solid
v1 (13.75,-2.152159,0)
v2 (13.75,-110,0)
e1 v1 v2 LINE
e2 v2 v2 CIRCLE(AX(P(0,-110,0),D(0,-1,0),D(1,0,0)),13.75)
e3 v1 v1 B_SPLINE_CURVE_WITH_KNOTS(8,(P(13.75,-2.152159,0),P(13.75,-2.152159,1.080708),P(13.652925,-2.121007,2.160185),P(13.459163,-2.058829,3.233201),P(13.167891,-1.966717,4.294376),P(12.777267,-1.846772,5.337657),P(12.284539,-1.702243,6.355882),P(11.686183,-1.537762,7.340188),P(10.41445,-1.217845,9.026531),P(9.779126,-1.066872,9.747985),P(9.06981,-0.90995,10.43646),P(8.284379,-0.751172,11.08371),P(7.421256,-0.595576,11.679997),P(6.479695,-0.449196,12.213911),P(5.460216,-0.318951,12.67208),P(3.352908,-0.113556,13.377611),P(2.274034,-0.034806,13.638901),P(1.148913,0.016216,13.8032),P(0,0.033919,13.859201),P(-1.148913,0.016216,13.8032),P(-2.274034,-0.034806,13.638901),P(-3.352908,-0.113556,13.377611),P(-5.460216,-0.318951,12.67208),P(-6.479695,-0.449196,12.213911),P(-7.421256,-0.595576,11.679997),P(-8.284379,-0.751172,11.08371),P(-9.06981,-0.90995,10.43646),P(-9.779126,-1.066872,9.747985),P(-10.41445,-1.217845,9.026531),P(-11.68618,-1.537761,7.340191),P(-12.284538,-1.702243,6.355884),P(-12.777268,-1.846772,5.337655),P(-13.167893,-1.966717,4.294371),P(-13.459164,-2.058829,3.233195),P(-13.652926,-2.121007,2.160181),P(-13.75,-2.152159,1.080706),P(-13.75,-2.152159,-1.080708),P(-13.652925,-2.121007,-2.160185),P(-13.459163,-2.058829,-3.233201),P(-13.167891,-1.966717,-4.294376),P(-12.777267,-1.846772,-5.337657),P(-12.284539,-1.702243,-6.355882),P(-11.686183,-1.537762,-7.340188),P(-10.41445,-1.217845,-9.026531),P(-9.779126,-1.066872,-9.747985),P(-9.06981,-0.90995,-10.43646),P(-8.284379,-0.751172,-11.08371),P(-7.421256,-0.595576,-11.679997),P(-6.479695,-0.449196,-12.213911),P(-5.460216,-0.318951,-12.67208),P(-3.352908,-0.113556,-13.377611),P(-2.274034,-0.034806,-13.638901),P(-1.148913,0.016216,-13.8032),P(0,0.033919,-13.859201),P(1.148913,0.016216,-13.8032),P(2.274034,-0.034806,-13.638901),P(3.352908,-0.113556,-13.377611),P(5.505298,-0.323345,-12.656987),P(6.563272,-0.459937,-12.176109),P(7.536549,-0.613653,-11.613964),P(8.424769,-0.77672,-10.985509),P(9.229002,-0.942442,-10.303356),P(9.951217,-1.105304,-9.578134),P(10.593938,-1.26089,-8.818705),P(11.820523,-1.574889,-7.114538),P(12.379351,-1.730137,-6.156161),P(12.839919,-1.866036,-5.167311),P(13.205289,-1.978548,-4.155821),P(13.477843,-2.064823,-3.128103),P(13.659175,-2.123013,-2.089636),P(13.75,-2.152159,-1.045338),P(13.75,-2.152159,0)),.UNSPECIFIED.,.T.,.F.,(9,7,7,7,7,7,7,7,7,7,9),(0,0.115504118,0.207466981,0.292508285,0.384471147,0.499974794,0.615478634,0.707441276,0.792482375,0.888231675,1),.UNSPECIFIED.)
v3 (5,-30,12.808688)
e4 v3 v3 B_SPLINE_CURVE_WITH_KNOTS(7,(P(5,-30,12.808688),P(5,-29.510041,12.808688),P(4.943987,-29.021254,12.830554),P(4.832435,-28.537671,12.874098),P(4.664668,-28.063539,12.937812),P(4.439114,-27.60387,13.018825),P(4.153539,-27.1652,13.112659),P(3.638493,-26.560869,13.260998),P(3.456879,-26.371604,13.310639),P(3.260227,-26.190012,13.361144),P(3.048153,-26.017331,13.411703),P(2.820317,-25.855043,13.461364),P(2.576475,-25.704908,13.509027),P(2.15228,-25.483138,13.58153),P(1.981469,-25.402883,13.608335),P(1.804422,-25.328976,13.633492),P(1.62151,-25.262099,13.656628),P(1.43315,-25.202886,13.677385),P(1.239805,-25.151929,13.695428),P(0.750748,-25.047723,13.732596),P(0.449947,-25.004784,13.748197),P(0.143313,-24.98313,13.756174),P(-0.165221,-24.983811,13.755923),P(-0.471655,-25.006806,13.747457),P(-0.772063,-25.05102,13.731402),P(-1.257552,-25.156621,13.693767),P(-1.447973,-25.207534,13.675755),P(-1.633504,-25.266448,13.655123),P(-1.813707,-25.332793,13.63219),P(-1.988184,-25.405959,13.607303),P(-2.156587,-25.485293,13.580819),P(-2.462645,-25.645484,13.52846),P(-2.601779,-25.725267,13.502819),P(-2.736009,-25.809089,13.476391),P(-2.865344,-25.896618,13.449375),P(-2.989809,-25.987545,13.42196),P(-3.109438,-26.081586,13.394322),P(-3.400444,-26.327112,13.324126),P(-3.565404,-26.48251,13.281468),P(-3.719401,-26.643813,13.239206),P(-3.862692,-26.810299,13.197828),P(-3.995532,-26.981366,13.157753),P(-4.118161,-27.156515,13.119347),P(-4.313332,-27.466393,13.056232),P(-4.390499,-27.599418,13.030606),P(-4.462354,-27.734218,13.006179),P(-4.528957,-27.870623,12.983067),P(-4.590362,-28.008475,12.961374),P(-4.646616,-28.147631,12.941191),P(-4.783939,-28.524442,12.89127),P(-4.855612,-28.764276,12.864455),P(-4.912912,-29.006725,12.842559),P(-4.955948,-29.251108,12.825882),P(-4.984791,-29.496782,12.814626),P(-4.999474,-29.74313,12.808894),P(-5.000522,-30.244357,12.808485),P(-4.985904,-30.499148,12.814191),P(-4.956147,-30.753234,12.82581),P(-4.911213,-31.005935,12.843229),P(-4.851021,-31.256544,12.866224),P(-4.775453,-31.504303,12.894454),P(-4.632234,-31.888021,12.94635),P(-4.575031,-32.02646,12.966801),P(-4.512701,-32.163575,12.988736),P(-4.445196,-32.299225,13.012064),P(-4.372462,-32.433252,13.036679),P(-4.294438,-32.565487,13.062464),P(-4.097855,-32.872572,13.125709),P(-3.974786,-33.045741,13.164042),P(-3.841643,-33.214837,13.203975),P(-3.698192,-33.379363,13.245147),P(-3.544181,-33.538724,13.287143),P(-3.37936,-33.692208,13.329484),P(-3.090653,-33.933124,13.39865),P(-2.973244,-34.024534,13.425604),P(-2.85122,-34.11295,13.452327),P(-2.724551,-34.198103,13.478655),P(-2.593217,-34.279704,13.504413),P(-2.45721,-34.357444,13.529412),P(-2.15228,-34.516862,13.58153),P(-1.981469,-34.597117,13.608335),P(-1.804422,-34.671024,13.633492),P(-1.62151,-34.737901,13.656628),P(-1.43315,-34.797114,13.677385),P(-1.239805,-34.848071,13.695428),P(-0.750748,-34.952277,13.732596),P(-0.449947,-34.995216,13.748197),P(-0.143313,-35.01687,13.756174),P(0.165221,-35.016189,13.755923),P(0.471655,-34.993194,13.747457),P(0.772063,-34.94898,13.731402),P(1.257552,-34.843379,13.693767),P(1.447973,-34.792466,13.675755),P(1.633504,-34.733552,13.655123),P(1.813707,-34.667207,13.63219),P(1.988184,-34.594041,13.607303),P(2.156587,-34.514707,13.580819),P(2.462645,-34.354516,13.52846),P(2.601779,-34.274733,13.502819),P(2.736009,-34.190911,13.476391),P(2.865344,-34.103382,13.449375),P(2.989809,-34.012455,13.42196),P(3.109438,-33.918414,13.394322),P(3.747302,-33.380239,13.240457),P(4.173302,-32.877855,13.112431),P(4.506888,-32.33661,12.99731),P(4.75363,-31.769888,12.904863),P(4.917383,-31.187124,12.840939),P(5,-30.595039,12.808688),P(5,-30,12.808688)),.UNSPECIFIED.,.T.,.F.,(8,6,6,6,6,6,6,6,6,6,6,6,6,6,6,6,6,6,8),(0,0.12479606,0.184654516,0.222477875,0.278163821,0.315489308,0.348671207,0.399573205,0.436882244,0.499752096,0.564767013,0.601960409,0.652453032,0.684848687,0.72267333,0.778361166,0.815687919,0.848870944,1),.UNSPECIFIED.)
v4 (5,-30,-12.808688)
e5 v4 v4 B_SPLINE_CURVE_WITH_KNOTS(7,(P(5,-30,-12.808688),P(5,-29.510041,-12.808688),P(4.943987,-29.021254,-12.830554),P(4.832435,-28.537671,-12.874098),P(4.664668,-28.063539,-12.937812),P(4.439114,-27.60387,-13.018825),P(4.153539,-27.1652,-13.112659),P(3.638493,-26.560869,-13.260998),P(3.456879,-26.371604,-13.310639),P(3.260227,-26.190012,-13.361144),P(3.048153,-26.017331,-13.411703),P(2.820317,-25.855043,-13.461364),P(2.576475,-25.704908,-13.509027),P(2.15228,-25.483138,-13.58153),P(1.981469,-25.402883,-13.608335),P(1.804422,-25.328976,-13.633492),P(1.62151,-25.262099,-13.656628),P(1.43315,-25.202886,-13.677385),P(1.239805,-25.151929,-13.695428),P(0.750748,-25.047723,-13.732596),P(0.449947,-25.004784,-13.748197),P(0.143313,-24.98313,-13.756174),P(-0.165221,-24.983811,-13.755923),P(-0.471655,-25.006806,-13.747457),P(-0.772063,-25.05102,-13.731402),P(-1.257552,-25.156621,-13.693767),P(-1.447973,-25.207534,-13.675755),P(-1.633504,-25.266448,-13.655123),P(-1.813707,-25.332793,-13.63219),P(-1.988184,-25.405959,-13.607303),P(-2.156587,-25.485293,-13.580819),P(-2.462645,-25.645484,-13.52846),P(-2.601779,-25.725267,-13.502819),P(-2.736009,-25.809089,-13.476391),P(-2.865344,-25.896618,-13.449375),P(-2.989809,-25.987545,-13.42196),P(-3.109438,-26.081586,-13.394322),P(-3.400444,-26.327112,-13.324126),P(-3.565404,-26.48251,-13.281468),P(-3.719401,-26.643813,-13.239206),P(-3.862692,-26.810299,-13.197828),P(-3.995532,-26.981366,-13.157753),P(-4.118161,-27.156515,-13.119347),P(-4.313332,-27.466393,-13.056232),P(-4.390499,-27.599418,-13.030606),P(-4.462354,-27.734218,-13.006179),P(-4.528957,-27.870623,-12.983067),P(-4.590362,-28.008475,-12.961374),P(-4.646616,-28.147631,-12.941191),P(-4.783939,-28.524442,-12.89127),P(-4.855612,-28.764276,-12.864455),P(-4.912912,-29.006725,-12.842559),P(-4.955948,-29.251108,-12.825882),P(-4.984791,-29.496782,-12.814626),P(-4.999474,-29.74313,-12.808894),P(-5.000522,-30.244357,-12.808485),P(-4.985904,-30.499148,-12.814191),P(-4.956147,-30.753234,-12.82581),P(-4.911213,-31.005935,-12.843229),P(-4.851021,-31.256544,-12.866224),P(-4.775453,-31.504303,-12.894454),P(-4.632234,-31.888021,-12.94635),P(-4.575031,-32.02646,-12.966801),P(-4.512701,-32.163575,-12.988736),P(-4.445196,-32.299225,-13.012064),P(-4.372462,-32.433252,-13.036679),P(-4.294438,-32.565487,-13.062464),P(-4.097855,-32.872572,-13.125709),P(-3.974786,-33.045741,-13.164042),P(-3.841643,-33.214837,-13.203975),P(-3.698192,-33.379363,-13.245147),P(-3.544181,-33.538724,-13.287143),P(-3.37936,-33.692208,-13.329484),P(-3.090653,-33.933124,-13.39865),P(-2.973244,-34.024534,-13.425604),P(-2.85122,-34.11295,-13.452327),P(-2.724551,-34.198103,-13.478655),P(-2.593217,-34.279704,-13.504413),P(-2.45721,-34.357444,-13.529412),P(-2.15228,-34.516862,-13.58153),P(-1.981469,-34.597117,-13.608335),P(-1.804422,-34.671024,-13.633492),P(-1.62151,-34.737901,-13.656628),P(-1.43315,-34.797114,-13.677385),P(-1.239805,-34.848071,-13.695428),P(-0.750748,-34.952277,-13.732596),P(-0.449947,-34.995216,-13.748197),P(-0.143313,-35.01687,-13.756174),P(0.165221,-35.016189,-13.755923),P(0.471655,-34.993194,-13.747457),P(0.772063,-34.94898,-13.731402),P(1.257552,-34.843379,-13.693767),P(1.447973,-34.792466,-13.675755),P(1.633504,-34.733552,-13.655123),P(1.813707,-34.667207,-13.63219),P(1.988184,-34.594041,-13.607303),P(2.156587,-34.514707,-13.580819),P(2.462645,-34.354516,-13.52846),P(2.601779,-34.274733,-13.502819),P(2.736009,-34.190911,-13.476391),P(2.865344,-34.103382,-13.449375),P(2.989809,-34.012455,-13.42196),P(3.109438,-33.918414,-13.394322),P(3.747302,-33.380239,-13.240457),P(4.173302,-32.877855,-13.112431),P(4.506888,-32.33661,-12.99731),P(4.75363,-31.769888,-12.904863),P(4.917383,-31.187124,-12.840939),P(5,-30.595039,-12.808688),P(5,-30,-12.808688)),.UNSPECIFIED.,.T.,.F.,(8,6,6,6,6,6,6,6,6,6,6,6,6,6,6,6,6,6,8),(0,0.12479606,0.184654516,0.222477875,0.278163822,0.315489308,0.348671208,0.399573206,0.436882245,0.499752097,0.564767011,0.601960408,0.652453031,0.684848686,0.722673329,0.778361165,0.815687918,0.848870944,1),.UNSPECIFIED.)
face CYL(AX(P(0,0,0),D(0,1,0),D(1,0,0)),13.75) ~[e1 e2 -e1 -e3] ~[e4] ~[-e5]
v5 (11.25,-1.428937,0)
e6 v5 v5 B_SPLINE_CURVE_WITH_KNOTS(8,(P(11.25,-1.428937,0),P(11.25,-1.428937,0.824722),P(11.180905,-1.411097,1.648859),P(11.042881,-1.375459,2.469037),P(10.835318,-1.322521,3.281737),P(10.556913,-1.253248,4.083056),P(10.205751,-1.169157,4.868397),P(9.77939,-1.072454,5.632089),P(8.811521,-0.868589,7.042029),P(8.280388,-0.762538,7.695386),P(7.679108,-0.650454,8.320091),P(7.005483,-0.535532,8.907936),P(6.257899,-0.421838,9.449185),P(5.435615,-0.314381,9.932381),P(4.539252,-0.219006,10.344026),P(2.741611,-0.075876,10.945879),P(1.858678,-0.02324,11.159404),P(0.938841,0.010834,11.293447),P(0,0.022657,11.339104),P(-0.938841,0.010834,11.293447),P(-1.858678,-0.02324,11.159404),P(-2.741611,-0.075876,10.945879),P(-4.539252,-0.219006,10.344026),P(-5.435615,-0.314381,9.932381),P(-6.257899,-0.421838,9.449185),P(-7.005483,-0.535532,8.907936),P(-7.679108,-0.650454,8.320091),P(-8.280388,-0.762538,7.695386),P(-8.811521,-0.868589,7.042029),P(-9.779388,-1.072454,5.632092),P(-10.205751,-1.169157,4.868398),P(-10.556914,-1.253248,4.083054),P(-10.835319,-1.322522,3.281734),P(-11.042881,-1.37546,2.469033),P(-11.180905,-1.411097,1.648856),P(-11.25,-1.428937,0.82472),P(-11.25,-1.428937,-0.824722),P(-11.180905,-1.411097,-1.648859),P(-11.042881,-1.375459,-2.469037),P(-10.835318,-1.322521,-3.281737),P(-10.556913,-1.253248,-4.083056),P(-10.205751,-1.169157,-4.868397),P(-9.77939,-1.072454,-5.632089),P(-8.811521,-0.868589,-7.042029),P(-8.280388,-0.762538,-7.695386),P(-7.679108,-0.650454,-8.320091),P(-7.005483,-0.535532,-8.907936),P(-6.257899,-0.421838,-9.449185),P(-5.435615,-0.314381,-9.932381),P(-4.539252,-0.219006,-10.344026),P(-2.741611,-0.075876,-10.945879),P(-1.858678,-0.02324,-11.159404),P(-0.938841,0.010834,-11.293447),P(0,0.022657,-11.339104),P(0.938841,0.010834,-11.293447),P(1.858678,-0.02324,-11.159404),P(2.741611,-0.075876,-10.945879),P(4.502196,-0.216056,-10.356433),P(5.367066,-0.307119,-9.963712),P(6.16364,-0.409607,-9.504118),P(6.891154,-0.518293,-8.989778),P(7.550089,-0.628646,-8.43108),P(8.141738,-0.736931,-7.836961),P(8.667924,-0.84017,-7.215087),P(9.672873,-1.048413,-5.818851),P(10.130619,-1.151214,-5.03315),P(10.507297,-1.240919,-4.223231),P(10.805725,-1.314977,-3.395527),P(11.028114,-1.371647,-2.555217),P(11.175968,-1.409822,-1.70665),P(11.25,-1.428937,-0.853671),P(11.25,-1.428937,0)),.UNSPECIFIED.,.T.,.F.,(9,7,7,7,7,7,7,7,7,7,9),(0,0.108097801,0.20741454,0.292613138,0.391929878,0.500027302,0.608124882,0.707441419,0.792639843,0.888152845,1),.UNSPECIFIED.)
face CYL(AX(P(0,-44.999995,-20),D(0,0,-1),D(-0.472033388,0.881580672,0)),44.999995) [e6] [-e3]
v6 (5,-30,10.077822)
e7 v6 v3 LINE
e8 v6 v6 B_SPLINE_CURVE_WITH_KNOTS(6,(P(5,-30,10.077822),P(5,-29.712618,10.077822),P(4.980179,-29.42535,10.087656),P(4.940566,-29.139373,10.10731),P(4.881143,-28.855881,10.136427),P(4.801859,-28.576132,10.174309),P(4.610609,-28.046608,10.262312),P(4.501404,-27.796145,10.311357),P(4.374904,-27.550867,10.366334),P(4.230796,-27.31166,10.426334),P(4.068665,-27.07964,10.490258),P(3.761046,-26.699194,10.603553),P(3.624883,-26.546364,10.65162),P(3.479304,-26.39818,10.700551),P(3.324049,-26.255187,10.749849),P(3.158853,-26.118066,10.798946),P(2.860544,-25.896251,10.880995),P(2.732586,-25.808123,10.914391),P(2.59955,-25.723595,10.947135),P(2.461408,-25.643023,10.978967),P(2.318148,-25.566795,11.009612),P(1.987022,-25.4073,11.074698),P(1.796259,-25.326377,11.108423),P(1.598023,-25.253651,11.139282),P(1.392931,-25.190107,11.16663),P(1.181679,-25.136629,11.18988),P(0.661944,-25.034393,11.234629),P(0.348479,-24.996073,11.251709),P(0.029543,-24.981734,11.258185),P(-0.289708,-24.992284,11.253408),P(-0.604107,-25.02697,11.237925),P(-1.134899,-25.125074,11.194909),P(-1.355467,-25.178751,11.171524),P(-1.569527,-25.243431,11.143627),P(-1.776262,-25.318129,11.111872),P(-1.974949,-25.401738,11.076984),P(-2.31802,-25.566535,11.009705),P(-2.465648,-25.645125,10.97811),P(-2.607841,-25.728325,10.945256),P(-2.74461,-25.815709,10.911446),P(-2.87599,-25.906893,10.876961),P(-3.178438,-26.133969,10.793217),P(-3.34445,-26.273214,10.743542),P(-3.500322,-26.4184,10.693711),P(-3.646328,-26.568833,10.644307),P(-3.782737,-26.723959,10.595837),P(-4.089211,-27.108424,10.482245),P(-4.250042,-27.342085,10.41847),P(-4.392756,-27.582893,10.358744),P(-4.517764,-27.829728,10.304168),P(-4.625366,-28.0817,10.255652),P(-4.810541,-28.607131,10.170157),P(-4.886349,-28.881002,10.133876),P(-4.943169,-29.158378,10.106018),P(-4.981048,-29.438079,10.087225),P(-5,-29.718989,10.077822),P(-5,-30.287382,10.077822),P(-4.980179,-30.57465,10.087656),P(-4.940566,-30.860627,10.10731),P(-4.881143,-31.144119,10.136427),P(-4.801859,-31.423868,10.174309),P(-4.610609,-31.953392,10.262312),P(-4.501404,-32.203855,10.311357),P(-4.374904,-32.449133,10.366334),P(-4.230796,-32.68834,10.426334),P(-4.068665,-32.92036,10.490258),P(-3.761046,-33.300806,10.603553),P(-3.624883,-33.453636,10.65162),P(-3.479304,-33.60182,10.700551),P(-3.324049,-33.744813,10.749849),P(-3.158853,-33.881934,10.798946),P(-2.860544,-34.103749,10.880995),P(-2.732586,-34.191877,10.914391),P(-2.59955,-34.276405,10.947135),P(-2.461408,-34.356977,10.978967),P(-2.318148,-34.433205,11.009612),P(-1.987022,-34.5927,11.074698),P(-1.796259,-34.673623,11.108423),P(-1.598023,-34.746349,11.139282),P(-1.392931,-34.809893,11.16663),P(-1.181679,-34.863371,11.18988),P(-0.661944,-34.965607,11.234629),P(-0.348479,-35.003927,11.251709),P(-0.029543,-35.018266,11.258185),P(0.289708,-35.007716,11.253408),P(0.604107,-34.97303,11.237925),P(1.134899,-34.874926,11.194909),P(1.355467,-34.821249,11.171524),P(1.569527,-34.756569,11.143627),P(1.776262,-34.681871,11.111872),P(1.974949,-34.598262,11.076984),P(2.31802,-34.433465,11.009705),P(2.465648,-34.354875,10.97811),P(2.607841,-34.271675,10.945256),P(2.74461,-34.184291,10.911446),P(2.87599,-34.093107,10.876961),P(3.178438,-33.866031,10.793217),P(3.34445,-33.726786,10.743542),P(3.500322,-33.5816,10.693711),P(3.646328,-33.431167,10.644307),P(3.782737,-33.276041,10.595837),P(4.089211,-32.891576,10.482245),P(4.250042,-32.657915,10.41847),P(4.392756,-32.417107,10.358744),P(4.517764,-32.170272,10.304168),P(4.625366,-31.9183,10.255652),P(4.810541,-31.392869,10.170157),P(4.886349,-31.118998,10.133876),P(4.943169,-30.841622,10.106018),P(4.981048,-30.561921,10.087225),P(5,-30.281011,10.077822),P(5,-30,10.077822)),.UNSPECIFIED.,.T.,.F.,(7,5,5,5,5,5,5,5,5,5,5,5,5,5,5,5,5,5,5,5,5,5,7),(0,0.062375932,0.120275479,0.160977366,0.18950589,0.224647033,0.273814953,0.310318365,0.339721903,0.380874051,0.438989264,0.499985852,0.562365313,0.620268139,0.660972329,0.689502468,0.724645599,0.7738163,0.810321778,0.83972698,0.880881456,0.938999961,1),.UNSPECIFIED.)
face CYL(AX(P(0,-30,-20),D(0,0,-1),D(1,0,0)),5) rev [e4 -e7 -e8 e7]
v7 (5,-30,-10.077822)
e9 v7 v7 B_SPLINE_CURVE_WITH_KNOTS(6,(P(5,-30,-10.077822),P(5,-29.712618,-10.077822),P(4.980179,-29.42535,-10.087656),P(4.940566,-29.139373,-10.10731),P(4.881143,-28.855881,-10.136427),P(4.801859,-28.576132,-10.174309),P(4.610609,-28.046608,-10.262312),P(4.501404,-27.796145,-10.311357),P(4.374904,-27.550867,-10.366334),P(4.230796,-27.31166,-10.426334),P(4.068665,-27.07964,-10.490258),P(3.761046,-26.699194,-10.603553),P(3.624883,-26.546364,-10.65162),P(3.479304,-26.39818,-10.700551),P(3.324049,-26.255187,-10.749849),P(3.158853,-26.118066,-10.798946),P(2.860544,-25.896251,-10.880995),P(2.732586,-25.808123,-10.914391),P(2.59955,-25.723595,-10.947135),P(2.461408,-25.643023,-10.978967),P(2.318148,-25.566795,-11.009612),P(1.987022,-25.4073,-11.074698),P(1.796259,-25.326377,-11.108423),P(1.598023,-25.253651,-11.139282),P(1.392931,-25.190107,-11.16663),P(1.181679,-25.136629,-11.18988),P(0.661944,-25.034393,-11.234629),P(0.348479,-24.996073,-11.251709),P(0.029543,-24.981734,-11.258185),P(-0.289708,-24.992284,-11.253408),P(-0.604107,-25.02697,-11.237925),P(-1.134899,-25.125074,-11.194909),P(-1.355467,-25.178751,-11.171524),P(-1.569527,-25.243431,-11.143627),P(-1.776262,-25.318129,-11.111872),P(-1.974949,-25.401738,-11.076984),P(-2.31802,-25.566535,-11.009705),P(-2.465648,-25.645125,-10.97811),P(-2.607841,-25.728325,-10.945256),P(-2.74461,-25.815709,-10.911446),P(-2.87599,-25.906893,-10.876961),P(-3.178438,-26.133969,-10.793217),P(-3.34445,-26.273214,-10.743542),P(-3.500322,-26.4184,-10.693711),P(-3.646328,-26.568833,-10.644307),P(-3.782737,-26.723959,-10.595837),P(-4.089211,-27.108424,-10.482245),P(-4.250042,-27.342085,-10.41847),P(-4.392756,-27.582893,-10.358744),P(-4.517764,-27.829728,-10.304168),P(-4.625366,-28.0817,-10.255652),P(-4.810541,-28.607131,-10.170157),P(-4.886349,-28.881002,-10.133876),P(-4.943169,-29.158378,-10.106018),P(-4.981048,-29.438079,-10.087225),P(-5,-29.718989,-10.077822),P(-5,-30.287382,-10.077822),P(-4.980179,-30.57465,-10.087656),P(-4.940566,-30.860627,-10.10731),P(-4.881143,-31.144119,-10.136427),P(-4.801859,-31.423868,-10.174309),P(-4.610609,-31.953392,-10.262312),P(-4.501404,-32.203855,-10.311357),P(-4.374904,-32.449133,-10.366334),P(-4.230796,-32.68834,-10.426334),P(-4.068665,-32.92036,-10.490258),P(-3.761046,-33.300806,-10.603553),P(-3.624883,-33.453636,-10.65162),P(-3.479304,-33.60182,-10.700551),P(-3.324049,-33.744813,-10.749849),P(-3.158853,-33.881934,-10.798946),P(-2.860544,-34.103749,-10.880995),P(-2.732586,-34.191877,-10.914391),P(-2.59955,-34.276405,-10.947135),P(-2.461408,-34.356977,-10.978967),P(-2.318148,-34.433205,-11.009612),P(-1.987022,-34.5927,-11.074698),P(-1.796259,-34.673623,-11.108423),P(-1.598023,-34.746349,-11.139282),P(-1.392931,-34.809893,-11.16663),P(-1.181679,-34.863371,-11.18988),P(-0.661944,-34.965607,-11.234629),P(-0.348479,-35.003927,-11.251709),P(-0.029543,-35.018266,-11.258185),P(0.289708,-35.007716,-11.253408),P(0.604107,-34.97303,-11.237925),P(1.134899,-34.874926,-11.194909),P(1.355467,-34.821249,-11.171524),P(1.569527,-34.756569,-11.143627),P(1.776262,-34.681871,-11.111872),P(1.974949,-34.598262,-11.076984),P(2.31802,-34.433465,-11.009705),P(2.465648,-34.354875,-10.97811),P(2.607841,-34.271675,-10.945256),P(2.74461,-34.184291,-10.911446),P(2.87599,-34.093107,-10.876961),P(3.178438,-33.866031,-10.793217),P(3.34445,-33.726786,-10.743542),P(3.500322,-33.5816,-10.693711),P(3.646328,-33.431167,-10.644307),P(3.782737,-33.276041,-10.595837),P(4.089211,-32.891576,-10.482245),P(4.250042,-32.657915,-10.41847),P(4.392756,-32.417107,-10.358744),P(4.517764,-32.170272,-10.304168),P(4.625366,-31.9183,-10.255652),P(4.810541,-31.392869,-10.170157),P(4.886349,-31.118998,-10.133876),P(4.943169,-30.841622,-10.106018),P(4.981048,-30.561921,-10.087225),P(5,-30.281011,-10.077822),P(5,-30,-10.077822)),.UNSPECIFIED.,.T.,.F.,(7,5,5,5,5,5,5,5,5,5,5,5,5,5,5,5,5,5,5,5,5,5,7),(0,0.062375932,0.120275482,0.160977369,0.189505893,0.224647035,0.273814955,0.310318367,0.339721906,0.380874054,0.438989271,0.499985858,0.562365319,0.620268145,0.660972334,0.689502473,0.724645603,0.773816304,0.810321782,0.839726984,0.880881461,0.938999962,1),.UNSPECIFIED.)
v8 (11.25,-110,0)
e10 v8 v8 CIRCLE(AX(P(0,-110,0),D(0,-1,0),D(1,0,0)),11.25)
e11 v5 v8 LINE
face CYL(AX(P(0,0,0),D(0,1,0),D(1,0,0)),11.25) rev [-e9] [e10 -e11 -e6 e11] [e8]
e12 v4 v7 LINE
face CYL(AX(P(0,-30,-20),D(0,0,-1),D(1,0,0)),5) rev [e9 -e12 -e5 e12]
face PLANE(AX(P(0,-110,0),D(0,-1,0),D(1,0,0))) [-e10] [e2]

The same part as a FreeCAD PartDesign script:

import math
import FreeCAD as App
import Part
import Sketcher
from FreeCAD import Vector
Q = App.Units.Quantity

doc = App.newDocument("Part")
body = doc.addObject("PartDesign::Body", "Body")

sketch1 = body.newObject("Sketcher::SketchObject", "Sketch")
sketch1.AttachmentSupport = (doc.getObject("XZ_Plane"), [""])
sketch1.MapMode = "FlatFace"
sketch1.addGeometry(Part.Circle(Vector(0, 0, 0), Vector(0, 0, 1), 14), False)
sketch1.addGeometry(Part.Circle(Vector(0, 0, 0), Vector(0, 0, 1), 11), False)
sketch1.addConstraint(Sketcher.Constraint("Coincident", 0, 3, -1, 1))
sketch1.addConstraint(Sketcher.Constraint("Coincident", 1, 3, -1, 1))
sketch1.addConstraint(Sketcher.Constraint("Diameter", 0, Q("27.5 mm")))
sketch1.addConstraint(Sketcher.Constraint("Diameter", 1, Q("22.5 mm")))
pad1 = body.newObject("PartDesign::Pad", "Pad")
pad1.Profile = sketch1
pad1.Length = 110

sketch2 = body.newObject("Sketcher::SketchObject", "Sketch001")
sketch2.AttachmentSupport = (doc.getObject("XY_Plane"), [""])
sketch2.MapMode = "FlatFace"
sketch2.AttachmentOffset = App.Placement(Vector(0, 0, -20), App.Rotation())
sketch2.addGeometry(Part.Circle(Vector(0, -30, 0), Vector(0, 0, 1), 5), False)
sketch2.addConstraint(Sketcher.Constraint("PointOnObject", 0, 3, -2))
sketch2.addConstraint(Sketcher.Constraint("Diameter", 0, Q("10 mm")))
sketch2.addConstraint(Sketcher.Constraint("DistanceY", 0, 3, -1, 1, Q("30 mm")))
pocket1 = body.newObject("PartDesign::Pocket", "Pocket")
pocket1.Profile = sketch2
pocket1.Type = "ThroughAll"
pocket1.Reversed = True

sketch3 = body.newObject("Sketcher::SketchObject", "Sketch002")
sketch3.AttachmentSupport = (doc.getObject("XY_Plane"), [""])
sketch3.MapMode = "FlatFace"
sketch3.AttachmentOffset = App.Placement(Vector(0, 0, -20), App.Rotation())
sketch3.addGeometry(Part.LineSegment(Vector(-21, 8, 0), Vector(-21, -5, 0)), False)
sketch3.addGeometry(Part.ArcOfCircle(Part.Circle(Vector(0, -45, 0), Vector(0, 0, 1), 45), math.radians(62), math.radians(118)), False)
sketch3.addGeometry(Part.LineSegment(Vector(21, -5, 0), Vector(21, 7, 0)), False)
sketch3.addGeometry(Part.LineSegment(Vector(21, 7, 0), Vector(-21, 8, 0)), False)
sketch3.addConstraint(Sketcher.Constraint("Coincident", 0, 2, 1, 2))
sketch3.addConstraint(Sketcher.Constraint("Coincident", 1, 1, 2, 1))
sketch3.addConstraint(Sketcher.Constraint("Coincident", 2, 2, 3, 1))
sketch3.addConstraint(Sketcher.Constraint("Coincident", 3, 2, 0, 1))
sketch3.addConstraint(Sketcher.Constraint("Vertical", 0))
sketch3.addConstraint(Sketcher.Constraint("Vertical", 2))
sketch3.addConstraint(Sketcher.Constraint("PointOnObject", 1, 3, -2))
sketch3.addConstraint(Sketcher.Constraint("Radius", 1, Q("44.999995 mm")))
sketch3.addConstraint(Sketcher.Constraint("DistanceX", 0, 2, -1, 1, Q("21.2415 mm")))
sketch3.addConstraint(Sketcher.Constraint("Distance", 3, Q("42.649831 mm")))
sketch3.addConstraint(Sketcher.Constraint("DistanceY", 0, 2, 0, 1, Q("13.003615 mm")))
sketch3.addConstraint(Sketcher.Constraint("DistanceY", 2, 1, 2, 2, Q("12.209603 mm")))
sketch3.addConstraint(Sketcher.Constraint("DistanceY", 0, 2, -1, 1, Q("5.328869 mm")))
pocket2 = body.newObject("PartDesign::Pocket", "Pocket001")
pocket2.Profile = sketch3
pocket2.Type = "ThroughAll"
pocket2.Reversed = True

doc.recompute()
